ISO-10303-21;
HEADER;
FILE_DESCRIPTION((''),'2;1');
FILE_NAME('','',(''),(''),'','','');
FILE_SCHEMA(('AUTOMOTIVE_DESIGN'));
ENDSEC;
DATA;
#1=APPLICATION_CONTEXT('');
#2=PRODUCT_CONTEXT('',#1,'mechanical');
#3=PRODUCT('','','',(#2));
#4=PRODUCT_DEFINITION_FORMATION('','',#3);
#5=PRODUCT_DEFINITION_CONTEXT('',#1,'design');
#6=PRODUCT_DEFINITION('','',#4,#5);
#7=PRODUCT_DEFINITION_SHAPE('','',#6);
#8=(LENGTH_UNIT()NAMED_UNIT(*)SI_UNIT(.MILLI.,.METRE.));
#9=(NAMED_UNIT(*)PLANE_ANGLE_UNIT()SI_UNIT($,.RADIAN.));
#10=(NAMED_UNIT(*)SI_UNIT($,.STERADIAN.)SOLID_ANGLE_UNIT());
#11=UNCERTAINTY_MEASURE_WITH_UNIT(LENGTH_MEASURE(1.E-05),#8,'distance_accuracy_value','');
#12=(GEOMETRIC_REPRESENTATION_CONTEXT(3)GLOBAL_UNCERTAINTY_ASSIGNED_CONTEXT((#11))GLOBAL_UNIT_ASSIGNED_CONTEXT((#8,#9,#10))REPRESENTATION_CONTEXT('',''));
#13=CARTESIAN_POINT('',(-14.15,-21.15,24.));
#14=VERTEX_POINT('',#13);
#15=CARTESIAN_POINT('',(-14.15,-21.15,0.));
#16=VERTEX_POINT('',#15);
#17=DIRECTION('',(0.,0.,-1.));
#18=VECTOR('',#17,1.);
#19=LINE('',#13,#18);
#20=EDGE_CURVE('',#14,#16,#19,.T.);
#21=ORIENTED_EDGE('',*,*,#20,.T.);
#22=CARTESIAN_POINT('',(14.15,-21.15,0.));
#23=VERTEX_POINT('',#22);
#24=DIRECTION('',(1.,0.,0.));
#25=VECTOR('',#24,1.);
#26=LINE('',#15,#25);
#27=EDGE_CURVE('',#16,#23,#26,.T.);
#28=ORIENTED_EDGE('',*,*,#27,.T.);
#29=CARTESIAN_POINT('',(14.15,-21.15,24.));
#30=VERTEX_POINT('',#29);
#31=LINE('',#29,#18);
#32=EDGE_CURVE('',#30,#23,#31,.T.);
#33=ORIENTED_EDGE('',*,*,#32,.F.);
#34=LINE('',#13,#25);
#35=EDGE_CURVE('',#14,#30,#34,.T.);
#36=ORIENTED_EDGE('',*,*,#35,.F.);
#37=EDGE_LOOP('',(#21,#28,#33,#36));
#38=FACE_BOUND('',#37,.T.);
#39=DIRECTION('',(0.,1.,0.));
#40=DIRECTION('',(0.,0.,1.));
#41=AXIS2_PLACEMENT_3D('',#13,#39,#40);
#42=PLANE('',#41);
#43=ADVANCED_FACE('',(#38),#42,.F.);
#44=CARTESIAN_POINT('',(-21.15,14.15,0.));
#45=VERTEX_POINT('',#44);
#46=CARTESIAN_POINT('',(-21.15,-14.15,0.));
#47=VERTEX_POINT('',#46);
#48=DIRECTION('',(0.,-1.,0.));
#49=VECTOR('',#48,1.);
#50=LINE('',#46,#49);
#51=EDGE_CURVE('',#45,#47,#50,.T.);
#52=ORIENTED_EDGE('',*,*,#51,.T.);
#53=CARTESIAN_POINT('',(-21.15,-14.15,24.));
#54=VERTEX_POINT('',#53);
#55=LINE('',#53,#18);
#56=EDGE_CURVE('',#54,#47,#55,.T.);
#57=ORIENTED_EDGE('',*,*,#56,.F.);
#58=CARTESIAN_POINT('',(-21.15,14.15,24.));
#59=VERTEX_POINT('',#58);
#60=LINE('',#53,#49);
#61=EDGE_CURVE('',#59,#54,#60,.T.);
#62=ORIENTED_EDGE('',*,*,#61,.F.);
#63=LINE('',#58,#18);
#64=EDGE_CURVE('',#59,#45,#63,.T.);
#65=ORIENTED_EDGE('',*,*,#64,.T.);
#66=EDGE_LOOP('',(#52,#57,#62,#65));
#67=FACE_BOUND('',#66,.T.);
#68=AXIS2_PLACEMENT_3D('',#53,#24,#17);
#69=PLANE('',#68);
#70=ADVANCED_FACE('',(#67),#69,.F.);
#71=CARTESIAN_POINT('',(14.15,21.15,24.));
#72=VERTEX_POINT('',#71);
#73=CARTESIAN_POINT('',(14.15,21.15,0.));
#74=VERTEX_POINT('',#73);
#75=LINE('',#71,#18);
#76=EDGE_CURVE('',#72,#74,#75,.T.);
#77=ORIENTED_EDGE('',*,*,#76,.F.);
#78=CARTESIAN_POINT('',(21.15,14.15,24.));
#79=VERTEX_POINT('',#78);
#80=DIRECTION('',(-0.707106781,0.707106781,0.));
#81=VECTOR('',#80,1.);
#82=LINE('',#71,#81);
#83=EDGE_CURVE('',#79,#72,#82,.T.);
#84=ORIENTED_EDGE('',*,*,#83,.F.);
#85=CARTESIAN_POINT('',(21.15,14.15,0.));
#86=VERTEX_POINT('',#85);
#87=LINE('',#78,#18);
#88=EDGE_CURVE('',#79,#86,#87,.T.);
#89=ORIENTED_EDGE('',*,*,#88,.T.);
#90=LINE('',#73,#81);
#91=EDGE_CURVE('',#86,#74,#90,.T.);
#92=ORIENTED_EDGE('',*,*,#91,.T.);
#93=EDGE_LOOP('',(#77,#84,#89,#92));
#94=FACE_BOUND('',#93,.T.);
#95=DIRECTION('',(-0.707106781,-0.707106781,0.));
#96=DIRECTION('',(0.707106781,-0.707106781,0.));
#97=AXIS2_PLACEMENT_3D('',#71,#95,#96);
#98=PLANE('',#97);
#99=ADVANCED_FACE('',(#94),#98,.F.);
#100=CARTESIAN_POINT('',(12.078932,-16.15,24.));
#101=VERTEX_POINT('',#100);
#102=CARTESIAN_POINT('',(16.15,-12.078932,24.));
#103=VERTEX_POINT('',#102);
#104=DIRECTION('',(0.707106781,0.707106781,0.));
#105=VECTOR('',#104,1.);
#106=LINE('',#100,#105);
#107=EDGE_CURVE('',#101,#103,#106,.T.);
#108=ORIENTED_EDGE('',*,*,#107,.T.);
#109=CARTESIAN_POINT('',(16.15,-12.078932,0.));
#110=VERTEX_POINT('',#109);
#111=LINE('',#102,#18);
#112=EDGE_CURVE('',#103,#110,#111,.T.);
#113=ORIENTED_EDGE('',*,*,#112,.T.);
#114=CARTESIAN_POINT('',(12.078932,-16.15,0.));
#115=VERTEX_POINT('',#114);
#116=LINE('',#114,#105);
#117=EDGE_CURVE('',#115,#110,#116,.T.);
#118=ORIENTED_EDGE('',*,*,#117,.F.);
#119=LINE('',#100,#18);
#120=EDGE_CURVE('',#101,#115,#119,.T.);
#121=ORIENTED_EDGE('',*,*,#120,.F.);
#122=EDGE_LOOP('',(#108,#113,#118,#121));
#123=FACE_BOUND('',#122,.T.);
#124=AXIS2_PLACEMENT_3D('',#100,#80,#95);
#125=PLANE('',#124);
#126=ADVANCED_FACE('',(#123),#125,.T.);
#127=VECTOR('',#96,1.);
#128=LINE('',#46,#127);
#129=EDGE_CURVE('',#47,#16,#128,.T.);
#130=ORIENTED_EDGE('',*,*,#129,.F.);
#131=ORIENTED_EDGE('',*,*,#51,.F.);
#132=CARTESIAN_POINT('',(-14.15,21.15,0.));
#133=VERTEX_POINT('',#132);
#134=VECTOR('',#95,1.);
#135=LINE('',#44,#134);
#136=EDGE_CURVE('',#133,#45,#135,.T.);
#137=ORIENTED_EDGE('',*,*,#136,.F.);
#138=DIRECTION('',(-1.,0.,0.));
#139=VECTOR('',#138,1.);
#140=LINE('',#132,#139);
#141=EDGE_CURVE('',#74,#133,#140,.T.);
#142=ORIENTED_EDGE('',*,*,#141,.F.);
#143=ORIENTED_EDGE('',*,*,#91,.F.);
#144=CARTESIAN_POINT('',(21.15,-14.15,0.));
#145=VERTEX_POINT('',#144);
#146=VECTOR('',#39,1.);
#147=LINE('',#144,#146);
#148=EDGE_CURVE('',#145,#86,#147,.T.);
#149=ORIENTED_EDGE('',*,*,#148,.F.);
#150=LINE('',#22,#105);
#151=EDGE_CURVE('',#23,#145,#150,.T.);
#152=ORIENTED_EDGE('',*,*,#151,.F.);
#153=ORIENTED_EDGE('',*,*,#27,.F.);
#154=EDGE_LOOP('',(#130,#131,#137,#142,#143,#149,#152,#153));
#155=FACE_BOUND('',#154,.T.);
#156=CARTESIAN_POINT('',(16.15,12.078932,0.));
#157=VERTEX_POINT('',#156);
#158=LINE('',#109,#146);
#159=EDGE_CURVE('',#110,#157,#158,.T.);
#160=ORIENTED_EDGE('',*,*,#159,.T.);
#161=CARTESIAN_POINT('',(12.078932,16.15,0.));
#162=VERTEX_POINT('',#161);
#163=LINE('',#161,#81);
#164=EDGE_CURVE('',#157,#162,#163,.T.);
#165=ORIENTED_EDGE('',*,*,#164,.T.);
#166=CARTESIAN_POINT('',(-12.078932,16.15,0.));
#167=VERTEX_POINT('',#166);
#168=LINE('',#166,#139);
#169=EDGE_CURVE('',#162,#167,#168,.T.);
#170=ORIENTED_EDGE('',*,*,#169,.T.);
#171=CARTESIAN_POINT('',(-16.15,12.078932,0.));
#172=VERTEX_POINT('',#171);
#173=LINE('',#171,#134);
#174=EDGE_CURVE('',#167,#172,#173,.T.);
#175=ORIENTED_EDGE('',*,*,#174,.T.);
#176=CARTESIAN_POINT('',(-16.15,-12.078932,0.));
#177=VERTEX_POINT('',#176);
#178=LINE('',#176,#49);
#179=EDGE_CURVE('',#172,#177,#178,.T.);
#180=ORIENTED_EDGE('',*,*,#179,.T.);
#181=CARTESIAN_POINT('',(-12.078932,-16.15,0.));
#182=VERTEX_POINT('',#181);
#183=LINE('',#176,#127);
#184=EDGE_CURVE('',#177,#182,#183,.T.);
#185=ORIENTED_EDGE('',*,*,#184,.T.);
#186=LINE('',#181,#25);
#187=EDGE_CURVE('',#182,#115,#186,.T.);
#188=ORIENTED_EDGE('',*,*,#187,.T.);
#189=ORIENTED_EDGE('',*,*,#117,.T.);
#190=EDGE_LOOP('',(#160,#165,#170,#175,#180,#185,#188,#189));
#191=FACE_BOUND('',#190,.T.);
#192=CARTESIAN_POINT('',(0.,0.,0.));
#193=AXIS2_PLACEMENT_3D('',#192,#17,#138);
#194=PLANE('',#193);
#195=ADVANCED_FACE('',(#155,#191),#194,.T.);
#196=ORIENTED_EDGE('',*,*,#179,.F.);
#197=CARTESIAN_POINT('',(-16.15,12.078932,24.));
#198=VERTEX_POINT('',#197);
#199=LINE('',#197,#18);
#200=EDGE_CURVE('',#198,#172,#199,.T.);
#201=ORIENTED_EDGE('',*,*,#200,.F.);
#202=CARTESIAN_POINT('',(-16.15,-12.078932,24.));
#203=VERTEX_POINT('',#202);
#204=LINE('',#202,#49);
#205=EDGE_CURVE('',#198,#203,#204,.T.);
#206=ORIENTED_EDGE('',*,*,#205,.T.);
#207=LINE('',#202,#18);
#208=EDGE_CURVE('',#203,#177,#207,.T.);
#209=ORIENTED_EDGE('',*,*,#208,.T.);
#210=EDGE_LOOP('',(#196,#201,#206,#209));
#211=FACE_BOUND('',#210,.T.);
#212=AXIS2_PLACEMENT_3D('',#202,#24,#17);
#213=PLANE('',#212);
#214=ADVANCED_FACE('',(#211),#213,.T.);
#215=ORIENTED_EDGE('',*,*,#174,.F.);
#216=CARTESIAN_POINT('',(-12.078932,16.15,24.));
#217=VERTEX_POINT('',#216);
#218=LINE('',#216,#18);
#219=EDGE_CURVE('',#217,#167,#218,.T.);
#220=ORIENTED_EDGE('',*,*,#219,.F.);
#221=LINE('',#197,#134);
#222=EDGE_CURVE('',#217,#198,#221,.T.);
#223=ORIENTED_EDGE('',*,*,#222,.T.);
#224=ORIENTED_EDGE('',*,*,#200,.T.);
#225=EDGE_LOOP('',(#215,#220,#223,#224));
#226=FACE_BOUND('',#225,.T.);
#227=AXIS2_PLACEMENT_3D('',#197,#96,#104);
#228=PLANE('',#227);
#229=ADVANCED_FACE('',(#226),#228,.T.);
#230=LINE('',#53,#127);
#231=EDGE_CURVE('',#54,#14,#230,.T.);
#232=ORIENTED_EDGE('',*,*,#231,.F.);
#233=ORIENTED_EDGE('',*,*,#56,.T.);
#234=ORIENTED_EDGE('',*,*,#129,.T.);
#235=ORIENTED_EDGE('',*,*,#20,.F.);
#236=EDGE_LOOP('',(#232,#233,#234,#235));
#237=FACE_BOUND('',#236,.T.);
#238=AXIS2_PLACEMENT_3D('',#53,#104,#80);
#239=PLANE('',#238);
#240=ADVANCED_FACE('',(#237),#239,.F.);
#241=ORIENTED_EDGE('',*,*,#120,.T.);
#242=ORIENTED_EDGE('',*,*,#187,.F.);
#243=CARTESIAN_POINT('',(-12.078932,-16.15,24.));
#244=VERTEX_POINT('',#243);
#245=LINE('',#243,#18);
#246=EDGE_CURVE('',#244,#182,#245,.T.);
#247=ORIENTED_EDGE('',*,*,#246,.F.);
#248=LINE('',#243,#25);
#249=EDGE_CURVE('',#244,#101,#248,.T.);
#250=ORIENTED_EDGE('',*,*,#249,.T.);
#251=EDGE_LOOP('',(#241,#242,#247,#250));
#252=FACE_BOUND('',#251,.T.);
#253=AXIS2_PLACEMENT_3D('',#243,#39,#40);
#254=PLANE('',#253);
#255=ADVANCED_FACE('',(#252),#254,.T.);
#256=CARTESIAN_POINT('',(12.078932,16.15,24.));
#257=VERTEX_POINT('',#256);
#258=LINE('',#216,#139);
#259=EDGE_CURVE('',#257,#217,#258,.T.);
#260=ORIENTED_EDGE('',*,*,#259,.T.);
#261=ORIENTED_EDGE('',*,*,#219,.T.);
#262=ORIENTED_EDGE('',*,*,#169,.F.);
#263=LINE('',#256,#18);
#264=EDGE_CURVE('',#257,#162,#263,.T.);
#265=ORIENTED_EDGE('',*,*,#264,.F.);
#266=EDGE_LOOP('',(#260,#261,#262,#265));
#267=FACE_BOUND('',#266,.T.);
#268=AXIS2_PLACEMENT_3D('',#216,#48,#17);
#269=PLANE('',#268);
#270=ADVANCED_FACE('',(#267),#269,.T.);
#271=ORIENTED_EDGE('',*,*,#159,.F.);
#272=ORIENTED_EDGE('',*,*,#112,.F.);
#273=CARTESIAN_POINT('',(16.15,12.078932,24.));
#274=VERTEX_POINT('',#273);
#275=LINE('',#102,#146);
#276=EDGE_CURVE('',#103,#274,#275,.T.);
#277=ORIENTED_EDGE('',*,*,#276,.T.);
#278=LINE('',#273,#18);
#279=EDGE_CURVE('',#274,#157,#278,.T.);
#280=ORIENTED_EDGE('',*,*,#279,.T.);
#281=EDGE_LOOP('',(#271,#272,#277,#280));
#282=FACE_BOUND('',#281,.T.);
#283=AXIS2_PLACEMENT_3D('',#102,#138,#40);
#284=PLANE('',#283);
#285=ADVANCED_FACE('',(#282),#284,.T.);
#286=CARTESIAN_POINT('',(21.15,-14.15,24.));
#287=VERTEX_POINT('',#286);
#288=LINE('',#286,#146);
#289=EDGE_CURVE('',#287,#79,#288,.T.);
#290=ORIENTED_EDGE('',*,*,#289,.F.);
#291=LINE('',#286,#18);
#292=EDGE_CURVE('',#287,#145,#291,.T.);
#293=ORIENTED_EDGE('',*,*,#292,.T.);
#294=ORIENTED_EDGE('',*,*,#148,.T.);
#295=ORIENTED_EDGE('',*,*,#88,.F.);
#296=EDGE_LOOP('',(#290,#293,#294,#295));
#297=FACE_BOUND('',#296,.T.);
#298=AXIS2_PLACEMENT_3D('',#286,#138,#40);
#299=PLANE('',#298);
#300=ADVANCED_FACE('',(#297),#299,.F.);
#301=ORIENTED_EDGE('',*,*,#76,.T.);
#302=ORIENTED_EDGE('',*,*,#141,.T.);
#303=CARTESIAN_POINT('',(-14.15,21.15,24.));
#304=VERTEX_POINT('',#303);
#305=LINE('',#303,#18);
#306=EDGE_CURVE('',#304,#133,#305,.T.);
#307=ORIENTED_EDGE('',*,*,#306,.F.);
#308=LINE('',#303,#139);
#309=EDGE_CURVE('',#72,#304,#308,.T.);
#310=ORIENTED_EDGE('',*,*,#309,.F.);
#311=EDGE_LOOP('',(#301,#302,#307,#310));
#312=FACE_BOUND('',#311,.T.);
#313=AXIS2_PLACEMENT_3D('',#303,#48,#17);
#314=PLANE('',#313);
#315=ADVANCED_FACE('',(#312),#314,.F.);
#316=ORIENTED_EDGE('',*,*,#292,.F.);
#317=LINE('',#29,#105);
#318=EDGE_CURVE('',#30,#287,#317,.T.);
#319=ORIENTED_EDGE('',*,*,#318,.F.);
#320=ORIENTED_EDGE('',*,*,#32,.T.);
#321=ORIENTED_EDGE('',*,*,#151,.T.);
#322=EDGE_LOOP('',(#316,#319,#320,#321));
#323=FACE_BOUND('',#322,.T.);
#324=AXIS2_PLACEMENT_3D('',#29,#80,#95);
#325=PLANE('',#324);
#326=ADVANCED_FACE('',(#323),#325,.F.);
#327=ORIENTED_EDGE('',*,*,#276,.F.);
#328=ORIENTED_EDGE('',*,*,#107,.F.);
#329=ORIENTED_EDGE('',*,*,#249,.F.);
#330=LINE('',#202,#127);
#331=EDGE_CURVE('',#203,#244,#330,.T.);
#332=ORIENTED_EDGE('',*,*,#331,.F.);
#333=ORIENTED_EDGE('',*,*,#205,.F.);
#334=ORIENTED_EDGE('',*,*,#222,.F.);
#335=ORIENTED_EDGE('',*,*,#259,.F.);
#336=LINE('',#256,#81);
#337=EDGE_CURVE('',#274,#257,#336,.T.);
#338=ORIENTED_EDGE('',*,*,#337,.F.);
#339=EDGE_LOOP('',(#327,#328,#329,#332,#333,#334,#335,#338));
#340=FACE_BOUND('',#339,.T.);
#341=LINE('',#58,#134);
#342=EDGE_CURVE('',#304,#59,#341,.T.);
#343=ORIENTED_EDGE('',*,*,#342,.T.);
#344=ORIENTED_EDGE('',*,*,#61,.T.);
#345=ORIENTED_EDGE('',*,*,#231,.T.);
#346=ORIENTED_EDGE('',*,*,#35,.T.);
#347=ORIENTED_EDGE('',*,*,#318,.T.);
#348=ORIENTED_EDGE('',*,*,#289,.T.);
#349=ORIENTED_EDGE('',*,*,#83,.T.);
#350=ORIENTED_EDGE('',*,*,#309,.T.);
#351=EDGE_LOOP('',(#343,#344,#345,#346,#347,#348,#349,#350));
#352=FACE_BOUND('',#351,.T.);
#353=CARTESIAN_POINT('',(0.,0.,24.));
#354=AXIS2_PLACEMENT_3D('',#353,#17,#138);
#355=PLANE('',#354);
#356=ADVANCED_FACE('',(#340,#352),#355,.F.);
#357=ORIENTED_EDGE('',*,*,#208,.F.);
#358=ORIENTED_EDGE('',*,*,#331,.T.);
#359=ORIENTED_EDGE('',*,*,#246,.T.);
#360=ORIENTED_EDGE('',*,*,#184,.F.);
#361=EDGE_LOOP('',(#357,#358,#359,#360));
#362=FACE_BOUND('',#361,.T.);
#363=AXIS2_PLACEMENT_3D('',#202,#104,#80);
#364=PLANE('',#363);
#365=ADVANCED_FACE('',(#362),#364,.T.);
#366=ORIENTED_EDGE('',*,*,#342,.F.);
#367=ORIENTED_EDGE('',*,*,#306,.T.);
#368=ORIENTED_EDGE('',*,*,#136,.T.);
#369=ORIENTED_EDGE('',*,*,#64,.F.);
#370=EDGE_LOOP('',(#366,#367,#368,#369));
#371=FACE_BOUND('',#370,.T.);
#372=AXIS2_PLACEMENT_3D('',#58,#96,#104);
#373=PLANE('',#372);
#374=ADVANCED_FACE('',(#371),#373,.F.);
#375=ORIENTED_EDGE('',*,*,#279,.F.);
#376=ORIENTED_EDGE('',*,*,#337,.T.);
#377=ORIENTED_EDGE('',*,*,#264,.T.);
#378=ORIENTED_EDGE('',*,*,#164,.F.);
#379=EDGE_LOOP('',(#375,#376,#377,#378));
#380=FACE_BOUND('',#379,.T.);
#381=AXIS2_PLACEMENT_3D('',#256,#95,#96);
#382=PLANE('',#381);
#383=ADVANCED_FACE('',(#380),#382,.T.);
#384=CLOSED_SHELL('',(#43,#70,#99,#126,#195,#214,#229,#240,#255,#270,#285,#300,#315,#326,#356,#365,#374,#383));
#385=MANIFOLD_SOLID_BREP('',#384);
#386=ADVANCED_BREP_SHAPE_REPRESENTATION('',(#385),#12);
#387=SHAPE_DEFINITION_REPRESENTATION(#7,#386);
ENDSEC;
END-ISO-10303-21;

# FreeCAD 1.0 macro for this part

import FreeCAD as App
import Part
import Sketcher

V = App.Vector
Q = App.Units.Quantity


def add_polygon(sketch, points):
    """Adds a closed chain of lines whose ends are joined by coincident constraints."""
    first, n = sketch.GeometryCount, len(points)
    for a, b in zip(points, points[1:] + points[:1]):
        sketch.addGeometry(Part.LineSegment(App.Vector(*a, 0), App.Vector(*b, 0)), False)
    for i in range(n):
        sketch.addConstraint(Sketcher.Constraint("Coincident", first + i, 2, first + (i + 1) % n, 1))

doc = App.newDocument("Part")
body = doc.addObject("PartDesign::Body", "Body")

sketch1 = doc.addObject("Sketcher::SketchObject", "Sketch")
body.addObject(sketch1)
sketch1.AttachmentSupport = (doc.XY_Plane, [""])
sketch1.MapMode = "FlatFace"
add_polygon(sketch1, [(-14, 21), (-21, 14), (-21, -14), (-14, -21), (14, -21), (21, -14), (21, 14), (14, 21)])
add_polygon(sketch1, [(-12, 16), (12, 16), (16, 12), (16, -12), (12, -16), (-12, -16), (-16, -12), (-16, 12)])
sketch1.addConstraint([
    Sketcher.Constraint("Vertical", 1),
    Sketcher.Constraint("Horizontal", 3),
    Sketcher.Constraint("Vertical", 5),
    Sketcher.Constraint("Horizontal", 7),
    Sketcher.Constraint("Horizontal", 8),
    Sketcher.Constraint("Vertical", 10),
    Sketcher.Constraint("Horizontal", 12),
    Sketcher.Constraint("Vertical", 14),
    Sketcher.Constraint("Symmetric", 0, 2, 4, 2, -1, 1),
    Sketcher.Constraint("Symmetric", 2, 2, 6, 2, -1, 1),
    Sketcher.Constraint("Symmetric", 8, 2, 12, 2, -1, 1),
    Sketcher.Constraint("Symmetric", 9, 2, 13, 2, -1, 1),
    Sketcher.Constraint("Perpendicular", 0, 2),
    Sketcher.Constraint("Perpendicular", 2, 4),
    Sketcher.Constraint("Perpendicular", 4, 6),
    Sketcher.Constraint("Parallel", 6, 9),
    Sketcher.Constraint("Perpendicular", 9, 11),
    Sketcher.Constraint("Perpendicular", 13, 15),
    Sketcher.Constraint("Horizontal", 1, 2, 4, 2),
    Sketcher.Constraint("Horizontal", 10, 2, 13, 2),
    Sketcher.Constraint("Horizontal", 9, 2, 14, 2),
    Sketcher.Constraint("Vertical", 3, 2, 6, 2),
    Sketcher.Constraint("Equal", 7, 1),
    Sketcher.Constraint("Equal", 12, 10),
    Sketcher.Constraint("DistanceX", 3, 1, 3, 2, Q("28.3 mm")),
    Sketcher.Constraint("DistanceX", 1, 2, 2, 2, Q("7 mm")),
    Sketcher.Constraint("DistanceY", 8, 2, 6, 2, Q("5 mm")),
    Sketcher.Constraint("Distance", 9, Q("5.757359 mm")),
])
pad1 = doc.addObject("PartDesign::Pad", "Pad")
body.addObject(pad1)
pad1.Profile = sketch1
pad1.Length = 24

doc.recompute()
